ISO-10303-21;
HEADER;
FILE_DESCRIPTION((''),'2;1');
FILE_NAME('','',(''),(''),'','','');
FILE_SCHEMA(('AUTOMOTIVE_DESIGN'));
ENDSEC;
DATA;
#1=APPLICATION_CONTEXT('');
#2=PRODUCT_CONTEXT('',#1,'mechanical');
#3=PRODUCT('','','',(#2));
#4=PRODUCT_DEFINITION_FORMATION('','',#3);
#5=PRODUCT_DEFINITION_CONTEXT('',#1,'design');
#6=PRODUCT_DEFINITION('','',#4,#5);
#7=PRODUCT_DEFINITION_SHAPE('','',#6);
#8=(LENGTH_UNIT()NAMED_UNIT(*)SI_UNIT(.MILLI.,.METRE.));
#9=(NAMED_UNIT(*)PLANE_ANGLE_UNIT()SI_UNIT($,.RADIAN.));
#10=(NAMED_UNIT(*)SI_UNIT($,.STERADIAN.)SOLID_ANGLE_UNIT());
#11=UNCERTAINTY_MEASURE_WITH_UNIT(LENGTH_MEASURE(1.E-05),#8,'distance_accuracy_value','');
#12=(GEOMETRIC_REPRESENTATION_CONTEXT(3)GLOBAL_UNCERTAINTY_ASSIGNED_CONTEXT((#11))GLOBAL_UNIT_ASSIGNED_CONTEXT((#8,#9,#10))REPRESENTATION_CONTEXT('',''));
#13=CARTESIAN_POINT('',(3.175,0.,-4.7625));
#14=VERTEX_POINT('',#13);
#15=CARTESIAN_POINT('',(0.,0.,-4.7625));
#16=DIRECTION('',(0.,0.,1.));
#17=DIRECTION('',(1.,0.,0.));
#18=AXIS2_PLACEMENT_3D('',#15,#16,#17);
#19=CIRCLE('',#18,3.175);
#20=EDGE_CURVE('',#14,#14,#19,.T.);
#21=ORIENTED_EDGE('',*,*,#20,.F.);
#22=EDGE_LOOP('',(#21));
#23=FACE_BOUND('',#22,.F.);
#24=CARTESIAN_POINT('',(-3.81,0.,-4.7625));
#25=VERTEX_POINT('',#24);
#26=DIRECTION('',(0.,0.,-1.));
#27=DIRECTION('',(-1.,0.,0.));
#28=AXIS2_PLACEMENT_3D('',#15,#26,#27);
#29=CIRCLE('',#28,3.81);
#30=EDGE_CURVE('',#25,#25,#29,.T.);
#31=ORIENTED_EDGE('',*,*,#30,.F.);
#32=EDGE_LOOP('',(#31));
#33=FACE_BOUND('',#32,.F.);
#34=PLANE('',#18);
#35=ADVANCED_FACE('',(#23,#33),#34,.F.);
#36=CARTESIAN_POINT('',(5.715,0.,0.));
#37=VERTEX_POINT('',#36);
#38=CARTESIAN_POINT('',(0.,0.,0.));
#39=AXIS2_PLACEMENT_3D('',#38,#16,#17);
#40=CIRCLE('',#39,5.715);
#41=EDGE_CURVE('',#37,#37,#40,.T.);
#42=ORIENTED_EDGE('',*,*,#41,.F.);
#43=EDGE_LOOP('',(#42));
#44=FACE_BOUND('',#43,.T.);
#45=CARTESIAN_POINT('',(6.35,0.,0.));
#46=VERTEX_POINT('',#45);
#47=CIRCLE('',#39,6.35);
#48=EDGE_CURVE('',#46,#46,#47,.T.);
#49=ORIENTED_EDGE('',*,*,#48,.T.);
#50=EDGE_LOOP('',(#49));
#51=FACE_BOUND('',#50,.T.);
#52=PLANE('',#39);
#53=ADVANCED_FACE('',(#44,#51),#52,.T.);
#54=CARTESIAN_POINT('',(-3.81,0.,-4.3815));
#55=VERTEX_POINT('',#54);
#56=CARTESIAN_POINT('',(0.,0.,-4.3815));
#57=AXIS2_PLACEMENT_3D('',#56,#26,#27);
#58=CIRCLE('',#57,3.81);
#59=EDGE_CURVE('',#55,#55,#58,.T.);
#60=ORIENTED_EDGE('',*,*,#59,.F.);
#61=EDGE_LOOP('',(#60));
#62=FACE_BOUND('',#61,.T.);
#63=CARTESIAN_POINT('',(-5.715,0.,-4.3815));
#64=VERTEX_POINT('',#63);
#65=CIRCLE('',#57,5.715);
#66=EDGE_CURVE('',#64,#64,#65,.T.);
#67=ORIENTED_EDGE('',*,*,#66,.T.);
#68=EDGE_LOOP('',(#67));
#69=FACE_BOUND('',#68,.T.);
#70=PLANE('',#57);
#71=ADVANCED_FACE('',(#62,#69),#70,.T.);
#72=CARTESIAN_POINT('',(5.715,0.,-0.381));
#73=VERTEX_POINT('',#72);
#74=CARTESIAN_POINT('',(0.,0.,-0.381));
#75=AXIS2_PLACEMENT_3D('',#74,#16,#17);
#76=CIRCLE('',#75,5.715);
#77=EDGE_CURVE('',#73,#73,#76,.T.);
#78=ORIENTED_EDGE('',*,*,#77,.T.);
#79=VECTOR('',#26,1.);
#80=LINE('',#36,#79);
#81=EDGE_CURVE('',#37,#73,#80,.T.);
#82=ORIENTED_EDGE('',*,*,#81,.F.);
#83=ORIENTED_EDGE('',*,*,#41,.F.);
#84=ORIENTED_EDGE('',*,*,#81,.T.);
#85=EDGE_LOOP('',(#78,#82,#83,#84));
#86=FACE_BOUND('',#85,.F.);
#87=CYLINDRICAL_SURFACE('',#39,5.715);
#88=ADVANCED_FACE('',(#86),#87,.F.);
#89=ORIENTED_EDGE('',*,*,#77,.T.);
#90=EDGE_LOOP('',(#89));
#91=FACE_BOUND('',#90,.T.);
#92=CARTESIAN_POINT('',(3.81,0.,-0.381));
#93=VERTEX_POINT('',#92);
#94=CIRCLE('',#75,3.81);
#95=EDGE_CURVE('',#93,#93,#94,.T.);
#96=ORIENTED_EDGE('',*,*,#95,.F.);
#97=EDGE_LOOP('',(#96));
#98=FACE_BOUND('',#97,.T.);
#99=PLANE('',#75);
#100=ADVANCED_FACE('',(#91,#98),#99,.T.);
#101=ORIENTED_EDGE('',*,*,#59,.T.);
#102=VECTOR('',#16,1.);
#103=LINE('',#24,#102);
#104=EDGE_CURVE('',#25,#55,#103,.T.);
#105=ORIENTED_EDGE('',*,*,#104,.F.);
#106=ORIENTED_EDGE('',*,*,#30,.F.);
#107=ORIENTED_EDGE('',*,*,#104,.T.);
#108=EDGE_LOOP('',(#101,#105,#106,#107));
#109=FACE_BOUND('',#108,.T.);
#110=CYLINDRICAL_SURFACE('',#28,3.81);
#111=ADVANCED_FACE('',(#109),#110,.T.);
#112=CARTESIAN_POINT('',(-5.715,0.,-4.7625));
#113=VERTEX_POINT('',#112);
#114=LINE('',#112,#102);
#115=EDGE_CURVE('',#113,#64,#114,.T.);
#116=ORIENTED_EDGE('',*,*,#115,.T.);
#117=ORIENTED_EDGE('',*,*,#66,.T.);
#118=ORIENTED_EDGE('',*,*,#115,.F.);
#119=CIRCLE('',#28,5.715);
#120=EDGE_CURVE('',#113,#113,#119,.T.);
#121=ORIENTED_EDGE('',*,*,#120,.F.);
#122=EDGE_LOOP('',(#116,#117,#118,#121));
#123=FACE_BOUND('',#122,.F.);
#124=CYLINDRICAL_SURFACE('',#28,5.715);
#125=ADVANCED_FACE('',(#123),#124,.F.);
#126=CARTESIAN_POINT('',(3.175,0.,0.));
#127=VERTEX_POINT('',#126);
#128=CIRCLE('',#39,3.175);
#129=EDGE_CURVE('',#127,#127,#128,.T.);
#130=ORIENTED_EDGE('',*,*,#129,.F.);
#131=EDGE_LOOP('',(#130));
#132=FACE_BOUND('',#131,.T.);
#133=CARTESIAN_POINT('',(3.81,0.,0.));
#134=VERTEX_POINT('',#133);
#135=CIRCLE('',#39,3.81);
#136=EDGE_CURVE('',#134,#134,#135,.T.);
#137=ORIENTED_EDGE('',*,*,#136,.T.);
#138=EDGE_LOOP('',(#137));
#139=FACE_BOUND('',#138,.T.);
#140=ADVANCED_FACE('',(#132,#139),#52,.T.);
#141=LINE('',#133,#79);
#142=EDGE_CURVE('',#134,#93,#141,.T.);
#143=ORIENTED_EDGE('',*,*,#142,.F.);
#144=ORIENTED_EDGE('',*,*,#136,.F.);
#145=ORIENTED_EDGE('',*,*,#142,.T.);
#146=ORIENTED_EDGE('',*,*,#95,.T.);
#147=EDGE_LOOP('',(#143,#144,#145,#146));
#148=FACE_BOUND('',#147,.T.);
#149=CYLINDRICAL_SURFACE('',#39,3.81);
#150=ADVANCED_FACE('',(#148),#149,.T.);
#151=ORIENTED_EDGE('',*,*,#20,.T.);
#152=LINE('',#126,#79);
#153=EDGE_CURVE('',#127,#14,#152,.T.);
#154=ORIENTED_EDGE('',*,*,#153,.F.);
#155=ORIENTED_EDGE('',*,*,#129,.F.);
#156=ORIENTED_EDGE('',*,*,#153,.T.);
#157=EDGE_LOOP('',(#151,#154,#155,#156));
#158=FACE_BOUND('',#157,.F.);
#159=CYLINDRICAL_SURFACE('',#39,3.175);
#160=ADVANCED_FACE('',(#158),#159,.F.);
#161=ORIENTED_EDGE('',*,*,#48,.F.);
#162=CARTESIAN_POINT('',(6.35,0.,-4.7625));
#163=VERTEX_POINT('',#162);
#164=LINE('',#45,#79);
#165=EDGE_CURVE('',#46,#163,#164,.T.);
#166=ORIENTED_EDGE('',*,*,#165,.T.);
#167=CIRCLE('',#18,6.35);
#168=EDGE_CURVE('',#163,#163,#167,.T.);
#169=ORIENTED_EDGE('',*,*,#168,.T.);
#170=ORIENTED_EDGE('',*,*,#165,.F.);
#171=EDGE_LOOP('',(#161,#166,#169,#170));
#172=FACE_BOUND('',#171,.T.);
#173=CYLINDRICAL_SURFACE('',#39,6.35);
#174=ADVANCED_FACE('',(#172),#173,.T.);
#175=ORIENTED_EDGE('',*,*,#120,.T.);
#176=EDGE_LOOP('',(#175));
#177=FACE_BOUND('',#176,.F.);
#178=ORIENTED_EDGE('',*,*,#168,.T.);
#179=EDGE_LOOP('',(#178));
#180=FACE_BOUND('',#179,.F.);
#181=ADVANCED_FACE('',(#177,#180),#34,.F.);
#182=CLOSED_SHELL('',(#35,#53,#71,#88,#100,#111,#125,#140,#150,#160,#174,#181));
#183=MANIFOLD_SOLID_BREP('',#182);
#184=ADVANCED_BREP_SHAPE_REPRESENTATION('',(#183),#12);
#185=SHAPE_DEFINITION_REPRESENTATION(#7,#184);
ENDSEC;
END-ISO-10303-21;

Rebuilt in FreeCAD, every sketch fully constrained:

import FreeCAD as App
import Part
import Sketcher

V = App.Vector
Q = App.Units.Quantity

doc = App.newDocument("Part")
body = doc.addObject("PartDesign::Body", "Body")

sketch1 = doc.addObject("Sketcher::SketchObject", "Sketch")
body.addObject(sketch1)
sketch1.AttachmentSupport = (doc.XY_Plane, [""])
sketch1.MapMode = "FlatFace"
sketch1.addGeometry(Part.Circle(V(0, 0, 0), V(0, 0, 1), 6.3), False)
sketch1.addGeometry(Part.Circle(V(0, 0, 0), V(0, 0, 1), 3.2), False)
sketch1.addConstraint(Sketcher.Constraint("Coincident", 0, 3, -1, 1))
sketch1.addConstraint(Sketcher.Constraint("Coincident", 1, 3, -1, 1))
sketch1.addConstraint(Sketcher.Constraint("Diameter", 0, Q("0.5 in")))
sketch1.addConstraint(Sketcher.Constraint("Diameter", 1, Q("0.25 in")))
pad1 = doc.addObject("PartDesign::Pad", "Pad")
body.addObject(pad1)
pad1.Profile = sketch1
pad1.Length = Q("0.1875 in")
pad1.Reversed = True

sketch2 = doc.addObject("Sketcher::SketchObject", "Sketch001")
body.addObject(sketch2)
sketch2.AttachmentSupport = (doc.XY_Plane, [""])
sketch2.MapMode = "FlatFace"
sketch2.addGeometry(Part.Circle(V(0, 0, 0), V(0, 0, 1), 5.7), False)
sketch2.addGeometry(Part.Circle(V(0, 0, 0), V(0, 0, 1), 3.8), False)
sketch2.addConstraint(Sketcher.Constraint("Coincident", 0, 3, -1, 1))
sketch2.addConstraint(Sketcher.Constraint("Coincident", 1, 3, -1, 1))
sketch2.addConstraint(Sketcher.Constraint("Diameter", 1, Q("0.3 in")))
sketch2.addConstraint(Sketcher.Constraint("Diameter", 0, Q("0.45 in")))
pocket1 = doc.addObject("PartDesign::Pocket", "Pocket")
body.addObject(pocket1)
pocket1.Profile = sketch2
pocket1.Length = Q("0.015 in")

sketch3 = doc.addObject("Sketcher::SketchObject", "Sketch002")
body.addObject(sketch3)
sketch3.AttachmentSupport = (doc.XY_Plane, [""])
sketch3.MapMode = "FlatFace"
sketch3.AttachmentOffset = App.Placement(V(0, 0, -0.1875 * 25.4), App.Rotation())
sketch3.addGeometry(Part.Circle(V(0, 0, 0), V(0, 0, 1), 5.7), False)
sketch3.addGeometry(Part.Circle(V(0, 0, 0), V(0, 0, 1), 3.8), False)
sketch3.addConstraint(Sketcher.Constraint("Coincident", 0, 3, -1, 1))
sketch3.addConstraint(Sketcher.Constraint("Coincident", 1, 3, -1, 1))
sketch3.addConstraint(Sketcher.Constraint("Diameter", 1, Q("0.3 in")))
sketch3.addConstraint(Sketcher.Constraint("Diameter", 0, Q("0.45 in")))
pocket2 = doc.addObject("PartDesign::Pocket", "Pocket001")
body.addObject(pocket2)
pocket2.Profile = sketch3
pocket2.Length = Q("0.015 in")
pocket2.Reversed = True

doc.recompute()
